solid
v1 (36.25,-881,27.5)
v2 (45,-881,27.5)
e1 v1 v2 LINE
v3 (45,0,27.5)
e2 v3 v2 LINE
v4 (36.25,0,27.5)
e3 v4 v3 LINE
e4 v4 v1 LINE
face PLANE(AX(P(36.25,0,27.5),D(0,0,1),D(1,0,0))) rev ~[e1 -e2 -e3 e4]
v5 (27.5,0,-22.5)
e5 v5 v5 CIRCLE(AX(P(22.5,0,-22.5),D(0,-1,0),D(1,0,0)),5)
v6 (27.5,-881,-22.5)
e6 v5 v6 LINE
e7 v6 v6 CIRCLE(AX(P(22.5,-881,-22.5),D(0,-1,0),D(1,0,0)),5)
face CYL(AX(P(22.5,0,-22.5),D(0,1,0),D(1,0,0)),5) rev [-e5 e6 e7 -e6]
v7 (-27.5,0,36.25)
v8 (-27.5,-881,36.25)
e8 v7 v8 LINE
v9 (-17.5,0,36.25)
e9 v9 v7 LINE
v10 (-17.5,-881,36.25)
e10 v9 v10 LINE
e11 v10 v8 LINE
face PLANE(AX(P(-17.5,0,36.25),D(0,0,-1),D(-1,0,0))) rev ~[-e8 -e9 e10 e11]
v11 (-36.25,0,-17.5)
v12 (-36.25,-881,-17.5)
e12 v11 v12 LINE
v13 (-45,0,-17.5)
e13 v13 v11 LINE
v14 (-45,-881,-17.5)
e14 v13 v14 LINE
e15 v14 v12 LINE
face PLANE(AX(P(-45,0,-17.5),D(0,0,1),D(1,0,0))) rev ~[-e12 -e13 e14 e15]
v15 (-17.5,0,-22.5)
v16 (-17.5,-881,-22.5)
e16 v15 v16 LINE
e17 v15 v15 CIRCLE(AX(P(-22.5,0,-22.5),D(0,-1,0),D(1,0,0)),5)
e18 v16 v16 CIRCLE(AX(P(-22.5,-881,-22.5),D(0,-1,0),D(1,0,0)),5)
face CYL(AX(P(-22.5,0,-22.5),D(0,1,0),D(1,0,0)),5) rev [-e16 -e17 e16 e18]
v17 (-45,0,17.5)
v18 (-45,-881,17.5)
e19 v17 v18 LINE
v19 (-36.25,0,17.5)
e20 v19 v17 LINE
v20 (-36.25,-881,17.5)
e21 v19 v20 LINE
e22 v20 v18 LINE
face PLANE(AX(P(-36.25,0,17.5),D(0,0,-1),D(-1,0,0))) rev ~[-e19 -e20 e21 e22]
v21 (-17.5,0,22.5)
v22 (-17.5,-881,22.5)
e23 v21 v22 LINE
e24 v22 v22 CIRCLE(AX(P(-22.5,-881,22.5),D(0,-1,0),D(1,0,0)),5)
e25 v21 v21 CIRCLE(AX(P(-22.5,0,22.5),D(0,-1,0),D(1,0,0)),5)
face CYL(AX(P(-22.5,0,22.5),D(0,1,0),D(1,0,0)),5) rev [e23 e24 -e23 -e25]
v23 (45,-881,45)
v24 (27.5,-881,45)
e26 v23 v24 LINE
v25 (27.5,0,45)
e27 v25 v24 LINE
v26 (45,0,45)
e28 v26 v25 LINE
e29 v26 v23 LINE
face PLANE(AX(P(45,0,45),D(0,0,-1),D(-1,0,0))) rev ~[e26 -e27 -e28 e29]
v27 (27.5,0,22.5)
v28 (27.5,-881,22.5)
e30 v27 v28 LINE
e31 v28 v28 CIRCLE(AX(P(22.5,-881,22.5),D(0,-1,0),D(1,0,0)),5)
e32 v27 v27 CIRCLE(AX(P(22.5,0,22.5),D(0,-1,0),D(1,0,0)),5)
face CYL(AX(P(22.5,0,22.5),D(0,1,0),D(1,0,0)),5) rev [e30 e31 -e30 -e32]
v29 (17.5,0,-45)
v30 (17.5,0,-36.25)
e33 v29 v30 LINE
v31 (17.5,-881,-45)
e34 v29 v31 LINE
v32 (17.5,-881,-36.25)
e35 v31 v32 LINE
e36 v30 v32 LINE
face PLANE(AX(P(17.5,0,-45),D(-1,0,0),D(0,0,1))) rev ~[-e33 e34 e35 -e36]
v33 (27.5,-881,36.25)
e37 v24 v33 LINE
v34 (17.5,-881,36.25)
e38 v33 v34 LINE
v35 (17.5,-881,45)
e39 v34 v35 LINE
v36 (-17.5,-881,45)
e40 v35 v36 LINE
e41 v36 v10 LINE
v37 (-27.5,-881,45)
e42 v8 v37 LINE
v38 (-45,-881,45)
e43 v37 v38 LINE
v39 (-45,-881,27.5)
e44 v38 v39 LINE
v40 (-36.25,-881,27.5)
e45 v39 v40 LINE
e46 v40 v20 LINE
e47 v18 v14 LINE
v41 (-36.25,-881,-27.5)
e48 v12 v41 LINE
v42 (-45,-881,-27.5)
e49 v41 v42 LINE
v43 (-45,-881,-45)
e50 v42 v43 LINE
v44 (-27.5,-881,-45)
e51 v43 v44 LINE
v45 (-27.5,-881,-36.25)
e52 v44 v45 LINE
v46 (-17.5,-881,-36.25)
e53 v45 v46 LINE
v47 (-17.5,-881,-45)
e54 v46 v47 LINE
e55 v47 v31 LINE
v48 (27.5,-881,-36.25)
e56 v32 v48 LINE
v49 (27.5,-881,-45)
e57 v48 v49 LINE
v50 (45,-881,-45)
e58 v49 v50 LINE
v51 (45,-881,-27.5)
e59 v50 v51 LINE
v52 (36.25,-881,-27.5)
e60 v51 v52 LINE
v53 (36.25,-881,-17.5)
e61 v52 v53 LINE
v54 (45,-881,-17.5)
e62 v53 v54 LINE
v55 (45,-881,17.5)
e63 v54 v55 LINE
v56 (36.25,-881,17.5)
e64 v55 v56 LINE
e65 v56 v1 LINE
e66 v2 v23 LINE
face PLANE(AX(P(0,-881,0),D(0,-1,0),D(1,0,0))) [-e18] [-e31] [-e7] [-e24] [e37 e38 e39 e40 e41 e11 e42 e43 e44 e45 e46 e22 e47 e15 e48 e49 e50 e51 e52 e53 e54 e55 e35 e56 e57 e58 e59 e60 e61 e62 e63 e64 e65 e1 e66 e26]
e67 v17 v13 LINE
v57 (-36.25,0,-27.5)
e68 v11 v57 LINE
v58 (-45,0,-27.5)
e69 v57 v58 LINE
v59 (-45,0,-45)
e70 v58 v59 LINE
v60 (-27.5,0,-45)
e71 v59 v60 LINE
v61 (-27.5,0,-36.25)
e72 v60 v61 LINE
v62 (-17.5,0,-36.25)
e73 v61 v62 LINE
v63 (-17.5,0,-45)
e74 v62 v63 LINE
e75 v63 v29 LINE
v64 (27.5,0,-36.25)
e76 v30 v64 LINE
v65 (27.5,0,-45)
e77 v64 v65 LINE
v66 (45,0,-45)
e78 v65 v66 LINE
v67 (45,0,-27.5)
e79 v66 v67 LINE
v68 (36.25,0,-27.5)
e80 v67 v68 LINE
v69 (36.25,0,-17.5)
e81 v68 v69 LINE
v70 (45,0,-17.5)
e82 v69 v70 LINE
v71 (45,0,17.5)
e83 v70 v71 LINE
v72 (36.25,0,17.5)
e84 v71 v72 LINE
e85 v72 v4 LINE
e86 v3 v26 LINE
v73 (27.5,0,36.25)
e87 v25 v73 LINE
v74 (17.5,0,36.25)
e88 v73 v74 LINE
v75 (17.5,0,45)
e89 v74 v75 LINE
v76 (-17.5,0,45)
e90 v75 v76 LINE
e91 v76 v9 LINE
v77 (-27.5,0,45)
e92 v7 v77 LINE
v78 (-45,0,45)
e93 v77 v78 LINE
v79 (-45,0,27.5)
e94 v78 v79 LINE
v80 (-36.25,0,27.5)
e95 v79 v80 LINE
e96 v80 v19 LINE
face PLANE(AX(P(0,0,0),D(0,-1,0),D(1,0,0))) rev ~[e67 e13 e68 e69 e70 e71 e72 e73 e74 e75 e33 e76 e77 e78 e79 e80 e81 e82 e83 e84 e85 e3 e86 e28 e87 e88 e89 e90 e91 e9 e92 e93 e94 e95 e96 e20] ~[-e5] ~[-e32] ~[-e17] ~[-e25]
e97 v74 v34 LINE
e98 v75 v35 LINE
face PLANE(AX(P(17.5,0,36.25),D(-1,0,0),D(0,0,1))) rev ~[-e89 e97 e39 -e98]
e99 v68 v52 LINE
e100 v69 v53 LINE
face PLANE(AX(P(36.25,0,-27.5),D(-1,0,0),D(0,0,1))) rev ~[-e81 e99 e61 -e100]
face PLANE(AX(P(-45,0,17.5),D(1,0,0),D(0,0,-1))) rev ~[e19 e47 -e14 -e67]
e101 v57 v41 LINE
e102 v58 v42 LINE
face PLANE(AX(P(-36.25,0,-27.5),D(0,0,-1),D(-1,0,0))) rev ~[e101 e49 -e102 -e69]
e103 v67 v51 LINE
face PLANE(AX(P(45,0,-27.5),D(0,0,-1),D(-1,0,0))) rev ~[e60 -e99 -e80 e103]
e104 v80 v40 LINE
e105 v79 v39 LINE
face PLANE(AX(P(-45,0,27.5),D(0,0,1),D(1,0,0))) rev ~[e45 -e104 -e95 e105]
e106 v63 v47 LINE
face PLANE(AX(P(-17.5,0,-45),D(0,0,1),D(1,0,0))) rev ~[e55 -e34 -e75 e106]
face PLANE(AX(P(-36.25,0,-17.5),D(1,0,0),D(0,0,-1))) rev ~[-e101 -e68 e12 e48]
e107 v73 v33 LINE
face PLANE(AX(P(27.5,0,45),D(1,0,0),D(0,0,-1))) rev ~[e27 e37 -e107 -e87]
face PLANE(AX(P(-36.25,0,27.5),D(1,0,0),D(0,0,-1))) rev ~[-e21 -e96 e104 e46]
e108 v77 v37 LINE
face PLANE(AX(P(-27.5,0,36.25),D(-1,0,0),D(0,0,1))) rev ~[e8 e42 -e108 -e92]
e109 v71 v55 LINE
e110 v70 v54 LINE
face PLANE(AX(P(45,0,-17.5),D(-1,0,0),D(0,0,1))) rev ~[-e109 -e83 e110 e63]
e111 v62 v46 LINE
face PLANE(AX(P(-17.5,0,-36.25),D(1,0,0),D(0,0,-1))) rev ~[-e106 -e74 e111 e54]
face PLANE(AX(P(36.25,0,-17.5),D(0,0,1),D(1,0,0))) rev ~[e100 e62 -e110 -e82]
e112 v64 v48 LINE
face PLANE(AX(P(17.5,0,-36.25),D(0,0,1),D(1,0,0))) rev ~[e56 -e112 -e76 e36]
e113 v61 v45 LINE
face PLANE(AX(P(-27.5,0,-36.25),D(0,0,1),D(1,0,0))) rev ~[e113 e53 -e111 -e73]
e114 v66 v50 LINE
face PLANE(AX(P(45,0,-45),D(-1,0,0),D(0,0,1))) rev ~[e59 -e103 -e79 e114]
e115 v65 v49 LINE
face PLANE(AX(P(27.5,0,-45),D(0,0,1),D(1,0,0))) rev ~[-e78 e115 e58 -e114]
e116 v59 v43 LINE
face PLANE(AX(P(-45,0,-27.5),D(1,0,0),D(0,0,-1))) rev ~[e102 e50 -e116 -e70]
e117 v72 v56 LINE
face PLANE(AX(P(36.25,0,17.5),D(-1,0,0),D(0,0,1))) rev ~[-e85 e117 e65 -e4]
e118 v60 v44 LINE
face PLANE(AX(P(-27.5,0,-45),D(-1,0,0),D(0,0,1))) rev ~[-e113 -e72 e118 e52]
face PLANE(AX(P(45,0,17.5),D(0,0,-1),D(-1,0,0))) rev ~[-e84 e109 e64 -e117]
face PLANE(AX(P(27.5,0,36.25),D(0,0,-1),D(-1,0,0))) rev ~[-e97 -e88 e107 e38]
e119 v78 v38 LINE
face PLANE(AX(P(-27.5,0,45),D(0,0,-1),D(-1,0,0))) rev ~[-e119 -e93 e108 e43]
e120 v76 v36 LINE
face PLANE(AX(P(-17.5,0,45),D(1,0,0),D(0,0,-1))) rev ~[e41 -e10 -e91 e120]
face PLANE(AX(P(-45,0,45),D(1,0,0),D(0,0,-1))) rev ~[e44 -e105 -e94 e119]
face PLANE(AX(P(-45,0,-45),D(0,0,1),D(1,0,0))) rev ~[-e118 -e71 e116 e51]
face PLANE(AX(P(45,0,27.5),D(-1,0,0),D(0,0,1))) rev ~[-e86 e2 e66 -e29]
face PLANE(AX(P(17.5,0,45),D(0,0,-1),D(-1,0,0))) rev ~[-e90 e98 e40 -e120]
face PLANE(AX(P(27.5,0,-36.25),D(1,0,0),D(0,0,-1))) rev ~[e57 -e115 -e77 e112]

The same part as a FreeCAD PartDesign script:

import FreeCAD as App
import Part
import Sketcher
from FreeCAD import Vector
Q = App.Units.Quantity

doc = App.newDocument("Part")
body = doc.addObject("PartDesign::Body", "Body")

sketch1 = body.newObject("Sketcher::SketchObject", "Sketch")
sketch1.AttachmentSupport = (doc.getObject("XZ_Plane"), [""])
sketch1.MapMode = "FlatFace"
sketch1.addGeometry(Part.LineSegment(Vector(45, -45, 0), Vector(45, -28, 0)), False)
sketch1.addGeometry(Part.LineSegment(Vector(45, -28, 0), Vector(36, -28, 0)), False)
sketch1.addGeometry(Part.LineSegment(Vector(36, -28, 0), Vector(36, -18, 0)), False)
sketch1.addGeometry(Part.LineSegment(Vector(36, -18, 0), Vector(45, -18, 0)), False)
sketch1.addGeometry(Part.LineSegment(Vector(45, -18, 0), Vector(45, 18, 0)), False)
sketch1.addGeometry(Part.LineSegment(Vector(45, 18, 0), Vector(36, 18, 0)), False)
sketch1.addGeometry(Part.LineSegment(Vector(36, 18, 0), Vector(36, 28, 0)), False)
sketch1.addGeometry(Part.LineSegment(Vector(36, 28, 0), Vector(45, 28, 0)), False)
sketch1.addGeometry(Part.LineSegment(Vector(45, 28, 0), Vector(45, 45, 0)), False)
sketch1.addGeometry(Part.LineSegment(Vector(45, 45, 0), Vector(28, 45, 0)), False)
sketch1.addGeometry(Part.LineSegment(Vector(28, 45, 0), Vector(28, 36, 0)), False)
sketch1.addGeometry(Part.LineSegment(Vector(28, 36, 0), Vector(18, 36, 0)), False)
sketch1.addGeometry(Part.LineSegment(Vector(18, 36, 0), Vector(18, 45, 0)), False)
sketch1.addGeometry(Part.LineSegment(Vector(18, 45, 0), Vector(-18, 45, 0)), False)
sketch1.addGeometry(Part.LineSegment(Vector(-18, 45, 0), Vector(-18, 36, 0)), False)
sketch1.addGeometry(Part.LineSegment(Vector(-18, 36, 0), Vector(-28, 36, 0)), False)
sketch1.addGeometry(Part.LineSegment(Vector(-28, 36, 0), Vector(-28, 45, 0)), False)
sketch1.addGeometry(Part.LineSegment(Vector(-28, 45, 0), Vector(-45, 45, 0)), False)
sketch1.addGeometry(Part.LineSegment(Vector(-45, 45, 0), Vector(-45, 28, 0)), False)
sketch1.addGeometry(Part.LineSegment(Vector(-45, 28, 0), Vector(-36, 28, 0)), False)
sketch1.addGeometry(Part.LineSegment(Vector(-36, 28, 0), Vector(-36, 18, 0)), False)
sketch1.addGeometry(Part.LineSegment(Vector(-36, 18, 0), Vector(-45, 18, 0)), False)
sketch1.addGeometry(Part.LineSegment(Vector(-45, 18, 0), Vector(-45, -18, 0)), False)
sketch1.addGeometry(Part.LineSegment(Vector(-45, -18, 0), Vector(-36, -18, 0)), False)
sketch1.addGeometry(Part.LineSegment(Vector(-36, -18, 0), Vector(-36, -28, 0)), False)
sketch1.addGeometry(Part.LineSegment(Vector(-36, -28, 0), Vector(-45, -28, 0)), False)
sketch1.addGeometry(Part.LineSegment(Vector(-45, -28, 0), Vector(-45, -45, 0)), False)
sketch1.addGeometry(Part.LineSegment(Vector(-45, -45, 0), Vector(-28, -45, 0)), False)
sketch1.addGeometry(Part.LineSegment(Vector(-28, -45, 0), Vector(-28, -36, 0)), False)
sketch1.addGeometry(Part.LineSegment(Vector(-28, -36, 0), Vector(-18, -36, 0)), False)
sketch1.addGeometry(Part.LineSegment(Vector(-18, -36, 0), Vector(-18, -45, 0)), False)
sketch1.addGeometry(Part.LineSegment(Vector(-18, -45, 0), Vector(18, -45, 0)), False)
sketch1.addGeometry(Part.LineSegment(Vector(18, -45, 0), Vector(18, -36, 0)), False)
sketch1.addGeometry(Part.LineSegment(Vector(18, -36, 0), Vector(28, -36, 0)), False)
sketch1.addGeometry(Part.LineSegment(Vector(28, -36, 0), Vector(28, -45, 0)), False)
sketch1.addGeometry(Part.LineSegment(Vector(28, -45, 0), Vector(45, -45, 0)), False)
sketch1.addGeometry(Part.Circle(Vector(-22, -22, 0), Vector(0, 0, 1), 5), False)
sketch1.addGeometry(Part.Circle(Vector(22, -22, 0), Vector(0, 0, 1), 5), False)
sketch1.addGeometry(Part.Circle(Vector(-22, 22, 0), Vector(0, 0, 1), 5), False)
sketch1.addGeometry(Part.Circle(Vector(22, 22, 0), Vector(0, 0, 1), 5), False)
sketch1.addConstraint(Sketcher.Constraint("Coincident", 0, 2, 1, 1))
sketch1.addConstraint(Sketcher.Constraint("Coincident", 1, 2, 2, 1))
sketch1.addConstraint(Sketcher.Constraint("Coincident", 2, 2, 3, 1))
sketch1.addConstraint(Sketcher.Constraint("Coincident", 3, 2, 4, 1))
sketch1.addConstraint(Sketcher.Constraint("Coincident", 4, 2, 5, 1))
sketch1.addConstraint(Sketcher.Constraint("Coincident", 5, 2, 6, 1))
sketch1.addConstraint(Sketcher.Constraint("Coincident", 6, 2, 7, 1))
sketch1.addConstraint(Sketcher.Constraint("Coincident", 7, 2, 8, 1))
sketch1.addConstraint(Sketcher.Constraint("Coincident", 8, 2, 9, 1))
sketch1.addConstraint(Sketcher.Constraint("Coincident", 9, 2, 10, 1))
sketch1.addConstraint(Sketcher.Constraint("Coincident", 10, 2, 11, 1))
sketch1.addConstraint(Sketcher.Constraint("Coincident", 11, 2, 12, 1))
sketch1.addConstraint(Sketcher.Constraint("Coincident", 12, 2, 13, 1))
sketch1.addConstraint(Sketcher.Constraint("Coincident", 13, 2, 14, 1))
sketch1.addConstraint(Sketcher.Constraint("Coincident", 14, 2, 15, 1))
sketch1.addConstraint(Sketcher.Constraint("Coincident", 15, 2, 16, 1))
sketch1.addConstraint(Sketcher.Constraint("Coincident", 16, 2, 17, 1))
sketch1.addConstraint(Sketcher.Constraint("Coincident", 17, 2, 18, 1))
sketch1.addConstraint(Sketcher.Constraint("Coincident", 18, 2, 19, 1))
sketch1.addConstraint(Sketcher.Constraint("Coincident", 19, 2, 20, 1))
sketch1.addConstraint(Sketcher.Constraint("Coincident", 20, 2, 21, 1))
sketch1.addConstraint(Sketcher.Constraint("Coincident", 21, 2, 22, 1))
sketch1.addConstraint(Sketcher.Constraint("Coincident", 22, 2, 23, 1))
sketch1.addConstraint(Sketcher.Constraint("Coincident", 23, 2, 24, 1))
sketch1.addConstraint(Sketcher.Constraint("Coincident", 24, 2, 25, 1))
sketch1.addConstraint(Sketcher.Constraint("Coincident", 25, 2, 26, 1))
sketch1.addConstraint(Sketcher.Constraint("Coincident", 26, 2, 27, 1))
sketch1.addConstraint(Sketcher.Constraint("Coincident", 27, 2, 28, 1))
sketch1.addConstraint(Sketcher.Constraint("Coincident", 28, 2, 29, 1))
sketch1.addConstraint(Sketcher.Constraint("Coincident", 29, 2, 30, 1))
sketch1.addConstraint(Sketcher.Constraint("Coincident", 30, 2, 31, 1))
sketch1.addConstraint(Sketcher.Constraint("Coincident", 31, 2, 32, 1))
sketch1.addConstraint(Sketcher.Constraint("Coincident", 32, 2, 33, 1))
sketch1.addConstraint(Sketcher.Constraint("Coincident", 33, 2, 34, 1))
sketch1.addConstraint(Sketcher.Constraint("Coincident", 34, 2, 35, 1))
sketch1.addConstraint(Sketcher.Constraint("Coincident", 35, 2, 0, 1))
sketch1.addConstraint(Sketcher.Constraint("Vertical", 0))
sketch1.addConstraint(Sketcher.Constraint("Horizontal", 1))
sketch1.addConstraint(Sketcher.Constraint("Vertical", 2))
sketch1.addConstraint(Sketcher.Constraint("Horizontal", 3))
sketch1.addConstraint(Sketcher.Constraint("Vertical", 4))
sketch1.addConstraint(Sketcher.Constraint("Horizontal", 5))
sketch1.addConstraint(Sketcher.Constraint("Vertical", 6))
sketch1.addConstraint(Sketcher.Constraint("Horizontal", 7))
sketch1.addConstraint(Sketcher.Constraint("Vertical", 8))
sketch1.addConstraint(Sketcher.Constraint("Horizontal", 9))
sketch1.addConstraint(Sketcher.Constraint("Vertical", 10))
sketch1.addConstraint(Sketcher.Constraint("Horizontal", 11))
sketch1.addConstraint(Sketcher.Constraint("Vertical", 12))
sketch1.addConstraint(Sketcher.Constraint("Horizontal", 13))
sketch1.addConstraint(Sketcher.Constraint("Vertical", 14))
sketch1.addConstraint(Sketcher.Constraint("Horizontal", 15))
sketch1.addConstraint(Sketcher.Constraint("Vertical", 16))
sketch1.addConstraint(Sketcher.Constraint("Horizontal", 17))
sketch1.addConstraint(Sketcher.Constraint("Vertical", 18))
sketch1.addConstraint(Sketcher.Constraint("Horizontal", 19))
sketch1.addConstraint(Sketcher.Constraint("Vertical", 20))
sketch1.addConstraint(Sketcher.Constraint("Horizontal", 21))
sketch1.addConstraint(Sketcher.Constraint("Vertical", 22))
sketch1.addConstraint(Sketcher.Constraint("Horizontal", 23))
sketch1.addConstraint(Sketcher.Constraint("Vertical", 24))
sketch1.addConstraint(Sketcher.Constraint("Horizontal", 25))
sketch1.addConstraint(Sketcher.Constraint("Vertical", 26))
sketch1.addConstraint(Sketcher.Constraint("Horizontal", 27))
sketch1.addConstraint(Sketcher.Constraint("Vertical", 28))
sketch1.addConstraint(Sketcher.Constraint("Horizontal", 29))
sketch1.addConstraint(Sketcher.Constraint("Vertical", 30))
sketch1.addConstraint(Sketcher.Constraint("Horizontal", 31))
sketch1.addConstraint(Sketcher.Constraint("Vertical", 32))
sketch1.addConstraint(Sketcher.Constraint("Horizontal", 33))
sketch1.addConstraint(Sketcher.Constraint("Vertical", 34))
sketch1.addConstraint(Sketcher.Constraint("Horizontal", 35))
sketch1.addConstraint(Sketcher.Constraint("Equal", 36, 37))
sketch1.addConstraint(Sketcher.Constraint("Equal", 37, 38))
sketch1.addConstraint(Sketcher.Constraint("Equal", 38, 39))
sketch1.addConstraint(Sketcher.Constraint("Symmetric", 37, 3, 38, 3, -1, 1))
sketch1.addConstraint(Sketcher.Constraint("Symmetric", 36, 3, 39, 3, -1, 1))
sketch1.addConstraint(Sketcher.Constraint("Symmetric", 0, 2, 18, 2, -1, 1))
sketch1.addConstraint(Sketcher.Constraint("Symmetric", 2, 2, 20, 2, -1, 1))
sketch1.addConstraint(Sketcher.Constraint("Symmetric", 4, 2, 22, 2, -1, 1))
sketch1.addConstraint(Sketcher.Constraint("Symmetric", 6, 2, 24, 2, -1, 1))
sketch1.addConstraint(Sketcher.Constraint("Symmetric", 8, 2, 26, 2, -1, 1))
sketch1.addConstraint(Sketcher.Constraint("Symmetric", 10, 2, 28, 2, -1, 1))
sketch1.addConstraint(Sketcher.Constraint("Symmetric", 12, 2, 30, 2, -1, 1))
sketch1.addConstraint(Sketcher.Constraint("Symmetric", 14, 2, 32, 2, -1, 1))
sketch1.addConstraint(Sketcher.Constraint("Symmetric", 16, 2, 34, 2, -1, 1))
sketch1.addConstraint(Sketcher.Constraint("Symmetric", 36, 3, 37, 3, -2))
sketch1.addConstraint(Sketcher.Constraint("Symmetric", 11, 2, 14, 2, -2))
sketch1.addConstraint(Sketcher.Constraint("Symmetric", 9, 2, 16, 2, -2))
sketch1.addConstraint(Sketcher.Constraint("Symmetric", 7, 2, 18, 2, -2))
sketch1.addConstraint(Sketcher.Constraint("Symmetric", 5, 2, 20, 2, -2))
sketch1.addConstraint(Sketcher.Constraint("Horizontal", 9, 2, 12, 2))
sketch1.addConstraint(Sketcher.Constraint("Vertical", 0, 2, 3, 2))
sketch1.addConstraint(Sketcher.Constraint("Equal", 35, 0))
sketch1.addConstraint(Sketcher.Constraint("Equal", 33, 2))
sketch1.addConstraint(Sketcher.Constraint("Equal", 31, 4))
sketch1.addConstraint(Sketcher.Constraint("Equal", 25, 10))
sketch1.addConstraint(Sketcher.Constraint("Diameter", 36, Q("10 mm")))
sketch1.addConstraint(Sketcher.Constraint("DistanceX", 11, 2, 11, 1, Q("10 mm")))
sketch1.addConstraint(Sketcher.Constraint("DistanceX", 13, 2, 13, 1, Q("35 mm")))
sketch1.addConstraint(Sketcher.Constraint("DistanceX", 9, 2, 9, 1, Q("17.5 mm")))
sketch1.addConstraint(Sketcher.Constraint("DistanceX", 36, 3, 37, 3, Q("45 mm")))
sketch1.addConstraint(Sketcher.Constraint("DistanceY", 36, 3, 38, 3, Q("45 mm")))
sketch1.addConstraint(Sketcher.Constraint("DistanceX", 1, 2, 1, 1, Q("8.75 mm")))
pad1 = body.newObject("PartDesign::Pad", "Pad")
pad1.Profile = sketch1
pad1.Length = 881

doc.recompute()
